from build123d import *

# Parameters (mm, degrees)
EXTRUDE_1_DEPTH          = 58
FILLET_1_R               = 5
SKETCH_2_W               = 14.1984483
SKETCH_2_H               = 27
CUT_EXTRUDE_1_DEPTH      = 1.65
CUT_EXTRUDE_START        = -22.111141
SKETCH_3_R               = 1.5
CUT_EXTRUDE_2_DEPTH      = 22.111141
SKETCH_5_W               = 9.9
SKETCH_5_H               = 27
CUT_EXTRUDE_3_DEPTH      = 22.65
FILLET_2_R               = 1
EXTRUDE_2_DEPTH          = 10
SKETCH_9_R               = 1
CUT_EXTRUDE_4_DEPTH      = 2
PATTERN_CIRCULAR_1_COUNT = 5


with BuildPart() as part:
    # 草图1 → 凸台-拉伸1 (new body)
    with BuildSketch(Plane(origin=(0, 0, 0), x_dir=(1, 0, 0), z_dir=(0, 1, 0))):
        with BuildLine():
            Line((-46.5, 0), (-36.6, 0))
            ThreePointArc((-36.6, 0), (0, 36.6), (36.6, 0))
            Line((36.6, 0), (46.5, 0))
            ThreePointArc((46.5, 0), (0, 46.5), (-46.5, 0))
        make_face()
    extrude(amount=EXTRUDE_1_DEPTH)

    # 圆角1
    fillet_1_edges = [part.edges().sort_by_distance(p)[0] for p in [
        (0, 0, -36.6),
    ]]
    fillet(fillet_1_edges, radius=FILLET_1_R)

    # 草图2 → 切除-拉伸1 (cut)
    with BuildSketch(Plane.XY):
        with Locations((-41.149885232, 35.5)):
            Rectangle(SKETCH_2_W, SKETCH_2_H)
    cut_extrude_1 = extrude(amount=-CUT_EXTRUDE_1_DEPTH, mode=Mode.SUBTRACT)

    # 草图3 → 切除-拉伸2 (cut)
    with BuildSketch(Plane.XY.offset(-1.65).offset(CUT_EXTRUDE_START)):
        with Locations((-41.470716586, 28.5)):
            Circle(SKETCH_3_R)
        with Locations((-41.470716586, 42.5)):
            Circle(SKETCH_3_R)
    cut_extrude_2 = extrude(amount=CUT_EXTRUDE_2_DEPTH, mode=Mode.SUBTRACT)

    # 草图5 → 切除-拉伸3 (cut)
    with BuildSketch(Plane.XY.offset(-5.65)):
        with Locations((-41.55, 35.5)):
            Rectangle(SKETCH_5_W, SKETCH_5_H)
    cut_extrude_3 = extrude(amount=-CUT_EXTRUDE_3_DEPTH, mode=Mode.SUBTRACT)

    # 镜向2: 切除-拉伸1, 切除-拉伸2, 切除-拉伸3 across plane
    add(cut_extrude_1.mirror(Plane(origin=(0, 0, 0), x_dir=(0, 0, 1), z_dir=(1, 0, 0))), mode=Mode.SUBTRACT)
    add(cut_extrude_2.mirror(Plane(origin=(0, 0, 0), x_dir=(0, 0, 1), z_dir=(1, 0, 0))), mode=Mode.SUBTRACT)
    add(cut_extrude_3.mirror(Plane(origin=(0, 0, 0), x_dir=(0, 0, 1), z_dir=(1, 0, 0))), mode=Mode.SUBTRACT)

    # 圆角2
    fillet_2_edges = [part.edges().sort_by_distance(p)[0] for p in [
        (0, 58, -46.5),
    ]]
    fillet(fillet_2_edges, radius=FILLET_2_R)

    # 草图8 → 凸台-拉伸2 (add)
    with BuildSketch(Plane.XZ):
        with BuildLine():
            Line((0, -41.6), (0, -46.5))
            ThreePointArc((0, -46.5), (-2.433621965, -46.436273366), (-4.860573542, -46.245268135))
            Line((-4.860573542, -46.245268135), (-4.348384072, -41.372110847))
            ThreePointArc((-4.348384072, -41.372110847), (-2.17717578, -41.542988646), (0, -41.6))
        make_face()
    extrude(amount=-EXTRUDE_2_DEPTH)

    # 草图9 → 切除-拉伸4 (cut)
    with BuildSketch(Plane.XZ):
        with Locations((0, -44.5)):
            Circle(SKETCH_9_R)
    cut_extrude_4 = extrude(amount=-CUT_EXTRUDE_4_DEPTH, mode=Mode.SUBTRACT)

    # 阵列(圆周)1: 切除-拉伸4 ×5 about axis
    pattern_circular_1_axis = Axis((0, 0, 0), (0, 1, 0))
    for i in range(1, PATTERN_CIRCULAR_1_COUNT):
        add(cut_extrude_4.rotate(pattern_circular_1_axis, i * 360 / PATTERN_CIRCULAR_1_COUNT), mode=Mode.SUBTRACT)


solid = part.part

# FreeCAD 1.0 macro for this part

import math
import FreeCAD as App
import Part
import Sketcher

V = App.Vector
Q = App.Units.Quantity


def edges_at(feature, points):
    """Names of the edges that pass closest to the given points."""
    edges = feature.Shape.Edges
    near = lambda p: min(range(len(edges)), key=lambda i: edges[i].distToShape(Part.Vertex(*p))[0])
    return sorted({f"Edge{near(p) + 1}" for p in points})

doc = App.newDocument("Part")
body = doc.addObject("PartDesign::Body", "Body")

# Sketch on XZ plane
sketch1 = body.newObject("Sketcher::SketchObject", "Sketch")
sketch1.AttachmentSupport = (doc.getObject("XZ_Plane"), [""])
sketch1.MapMode = "FlatFace"
sketch1.addGeometry([
    Part.LineSegment(V(-46, 0, 0), V(-37, 0, 0)),
    Part.ArcOfCircle(Part.Circle(V(0, 0, 0), V(0, 0, 1), 37), math.radians(180), math.radians(360)),
    Part.LineSegment(V(37, 0, 0), V(46, 0, 0)),
    Part.ArcOfCircle(Part.Circle(V(0, 0, 0), V(0, 0, 1), 46), math.radians(180), math.radians(360)),
], False)
sketch1.addConstraint([
    Sketcher.Constraint("Coincident", 0, 2, 1, 1),
    Sketcher.Constraint("Coincident", 1, 2, 2, 1),
    Sketcher.Constraint("Coincident", 2, 2, 3, 2),
    Sketcher.Constraint("Coincident", 3, 1, 0, 1),
    Sketcher.Constraint("Horizontal", 0),
    Sketcher.Constraint("Horizontal", 2),
    Sketcher.Constraint("Coincident", 1, 3, -1, 1),
    Sketcher.Constraint("Coincident", 3, 3, -1, 1),
    Sketcher.Constraint("PointOnObject", 0, 2, -1),
    Sketcher.Constraint("PointOnObject", 1, 2, -1),
    Sketcher.Constraint("Radius", 1, 36.6),
    Sketcher.Constraint("Radius", 3, 46.5),
])
pad1 = body.newObject("PartDesign::Pad", "Pad")
pad1.Profile = sketch1
pad1.Length = 58
pad1.Reversed = True
doc.recompute()

fillet = body.newObject("PartDesign::Fillet", "Fillet")
fillet.Base = (pad1, edges_at(pad1, [(0, 0, -36.6)]))
fillet.Radius = 5

# Sketch on XY plane
sketch2 = body.newObject("Sketcher::SketchObject", "Sketch001")
sketch2.AttachmentSupport = (doc.getObject("XY_Plane"), [""])
sketch2.MapMode = "FlatFace"
sketch2.addGeometry([
    Part.LineSegment(V(-48, 49, 0), V(-48, 22, 0)),
    Part.LineSegment(V(-48, 22, 0), V(-34, 22, 0)),
    Part.LineSegment(V(-34, 22, 0), V(-34, 49, 0)),
    Part.LineSegment(V(-34, 49, 0), V(-48, 49, 0)),
], False)
sketch2.addConstraint([
    Sketcher.Constraint("Coincident", 0, 2, 1, 1),
    Sketcher.Constraint("Coincident", 1, 2, 2, 1),
    Sketcher.Constraint("Coincident", 2, 2, 3, 1),
    Sketcher.Constraint("Coincident", 3, 2, 0, 1),
    Sketcher.Constraint("Vertical", 0),
    Sketcher.Constraint("Horizontal", 1),
    Sketcher.Constraint("Vertical", 2),
    Sketcher.Constraint("Horizontal", 3),
    Sketcher.Constraint("DistanceY", 0, 2, 0, 1, 27.0),
    Sketcher.Constraint("DistanceY", -1, 1, 0, 2, 22.0),
    Sketcher.Constraint("DistanceX", 1, 1, 1, 2, 14.198448),
    Sketcher.Constraint("DistanceX", 0, 2, -1, 1, 48.249109),
])
pocket1 = body.newObject("PartDesign::Pocket", "Pocket")
pocket1.Profile = sketch2
pocket1.Length = 1.65

# Sketch on XY plane
sketch3 = body.newObject("Sketcher::SketchObject", "Sketch002")
sketch3.AttachmentSupport = (doc.getObject("XY_Plane"), [""])
sketch3.MapMode = "FlatFace"
sketch3.AttachmentOffset = App.Placement(V(0, 0, -23.761141), App.Rotation())
sketch3.addGeometry([
    Part.Circle(V(-41.5, 28.5, 0), V(0, 0, 1), 1.5),
    Part.Circle(V(-41.5, 42.5, 0), V(0, 0, 1), 1.5),
], False)
sketch3.addConstraint([
    Sketcher.Constraint("Equal", 0, 1),
    Sketcher.Constraint("Vertical", 0, 3, 1, 3),
    Sketcher.Constraint("Diameter", 0, 3.0),
    Sketcher.Constraint("DistanceY", 0, 3, 1, 3, 14.0),
    Sketcher.Constraint("DistanceY", -1, 1, 0, 3, 28.5),
    Sketcher.Constraint("DistanceX", 0, 3, -1, 1, 41.470717),
])
pocket2 = body.newObject("PartDesign::Pocket", "Pocket001")
pocket2.Profile = sketch3
pocket2.Length = 22.111141
pocket2.Reversed = True

# Sketch on XY plane
sketch4 = body.newObject("Sketcher::SketchObject", "Sketch003")
sketch4.AttachmentSupport = (doc.getObject("XY_Plane"), [""])
sketch4.MapMode = "FlatFace"
sketch4.AttachmentOffset = App.Placement(V(0, 0, -5.65), App.Rotation())
sketch4.addGeometry([
    Part.LineSegment(V(-46, 49, 0), V(-46, 22, 0)),
    Part.LineSegment(V(-46, 22, 0), V(-37, 22, 0)),
    Part.LineSegment(V(-37, 22, 0), V(-37, 49, 0)),
    Part.LineSegment(V(-37, 49, 0), V(-46, 49, 0)),
], False)
sketch4.addConstraint([
    Sketcher.Constraint("Coincident", 0, 2, 1, 1),
    Sketcher.Constraint("Coincident", 1, 2, 2, 1),
    Sketcher.Constraint("Coincident", 2, 2, 3, 1),
    Sketcher.Constraint("Coincident", 3, 2, 0, 1),
    Sketcher.Constraint("Vertical", 0),
    Sketcher.Constraint("Horizontal", 1),
    Sketcher.Constraint("Vertical", 2),
    Sketcher.Constraint("Horizontal", 3),
    Sketcher.Constraint("DistanceY", 0, 2, 0, 1, 27.0),
    Sketcher.Constraint("DistanceX", 1, 1, 1, 2, 9.9),
    Sketcher.Constraint("DistanceY", -1, 1, 0, 2, 22.0),
    Sketcher.Constraint("DistanceX", 0, 2, -1, 1, 46.5),
])
pocket3 = body.newObject("PartDesign::Pocket", "Pocket002")
pocket3.Profile = sketch4
pocket3.Length = 22.65
doc.recompute()

mirrored = body.newObject("PartDesign::Mirrored", "Mirrored")
mirrored.Originals = [pocket1, pocket2, pocket3]
mirrored.MirrorPlane = (doc.getObject("YZ_Plane"), [""])
body.Tip = mirrored
doc.recompute()

fillet2 = body.newObject("PartDesign::Fillet", "Fillet001")
fillet2.Base = (mirrored, edges_at(mirrored, [(0, 58, -46.5)]))
fillet2.Radius = 1

# Sketch on XZ plane
sketch5 = body.newObject("Sketcher::SketchObject", "Sketch004")
sketch5.AttachmentSupport = (doc.getObject("XZ_Plane"), [""])
sketch5.MapMode = "FlatFace"
sketch5.addGeometry([
    Part.LineSegment(V(0, -46.5, 0), V(0, -41.6, 0)),
    Part.ArcOfCircle(Part.Circle(V(0, 0, 0), V(0, 0, 1), 41.6), math.radians(-96), math.radians(-90)),
    Part.LineSegment(V(-4.3, -41.4, 0), V(-4.9, -46.2, 0)),
    Part.ArcOfCircle(Part.Circle(V(0, 0, 0), V(0, 0, 1), 46.5), math.radians(-96), math.radians(-90)),
], False)
sketch5.addConstraint([
    Sketcher.Constraint("Coincident", 0, 2, 1, 2),
    Sketcher.Constraint("Coincident", 1, 1, 2, 1),
    Sketcher.Constraint("Coincident", 2, 2, 3, 1),
    Sketcher.Constraint("Coincident", 3, 2, 0, 1),
    Sketcher.Constraint("Vertical", 0),
    Sketcher.Constraint("Coincident", 1, 3, -1, 1),
    Sketcher.Constraint("Coincident", 3, 3, -1, 1),
    Sketcher.Constraint("PointOnObject", 0, 2, -2),
    Sketcher.Constraint("Radius", 1, 41.6),
    Sketcher.Constraint("Radius", 3, 46.5),
    Sketcher.Constraint("Angle", 2, Q("-96 deg")),
    Sketcher.Constraint("DistanceY", 1, 1, -1, 1, 41.372111),
])
pad2 = body.newObject("PartDesign::Pad", "Pad001")
pad2.Profile = sketch5
pad2.Length = 10
pad2.Reversed = True

# Sketch on XZ plane
sketch6 = body.newObject("Sketcher::SketchObject", "Sketch005")
sketch6.AttachmentSupport = (doc.getObject("XZ_Plane"), [""])
sketch6.MapMode = "FlatFace"
sketch6.addGeometry(Part.Circle(V(0, -44.5, 0), V(0, 0, 1), 1), False)
sketch6.addConstraint([
    Sketcher.Constraint("PointOnObject", 0, 3, -2),
    Sketcher.Constraint("Diameter", 0, 2.0),
    Sketcher.Constraint("DistanceY", 0, 3, -1, 1, 44.5),
])
pocket4 = body.newObject("PartDesign::Pocket", "Pocket003")
pocket4.Profile = sketch6
pocket4.Length = 2
doc.recompute()

polarpattern = body.newObject("PartDesign::PolarPattern", "PolarPattern")
polarpattern.Originals = [pocket4]
polarpattern.Axis = (doc.getObject("Y_Axis"), [""])
polarpattern.Angle = 360
polarpattern.Occurrences = 5
body.Tip = polarpattern

doc.recompute()
